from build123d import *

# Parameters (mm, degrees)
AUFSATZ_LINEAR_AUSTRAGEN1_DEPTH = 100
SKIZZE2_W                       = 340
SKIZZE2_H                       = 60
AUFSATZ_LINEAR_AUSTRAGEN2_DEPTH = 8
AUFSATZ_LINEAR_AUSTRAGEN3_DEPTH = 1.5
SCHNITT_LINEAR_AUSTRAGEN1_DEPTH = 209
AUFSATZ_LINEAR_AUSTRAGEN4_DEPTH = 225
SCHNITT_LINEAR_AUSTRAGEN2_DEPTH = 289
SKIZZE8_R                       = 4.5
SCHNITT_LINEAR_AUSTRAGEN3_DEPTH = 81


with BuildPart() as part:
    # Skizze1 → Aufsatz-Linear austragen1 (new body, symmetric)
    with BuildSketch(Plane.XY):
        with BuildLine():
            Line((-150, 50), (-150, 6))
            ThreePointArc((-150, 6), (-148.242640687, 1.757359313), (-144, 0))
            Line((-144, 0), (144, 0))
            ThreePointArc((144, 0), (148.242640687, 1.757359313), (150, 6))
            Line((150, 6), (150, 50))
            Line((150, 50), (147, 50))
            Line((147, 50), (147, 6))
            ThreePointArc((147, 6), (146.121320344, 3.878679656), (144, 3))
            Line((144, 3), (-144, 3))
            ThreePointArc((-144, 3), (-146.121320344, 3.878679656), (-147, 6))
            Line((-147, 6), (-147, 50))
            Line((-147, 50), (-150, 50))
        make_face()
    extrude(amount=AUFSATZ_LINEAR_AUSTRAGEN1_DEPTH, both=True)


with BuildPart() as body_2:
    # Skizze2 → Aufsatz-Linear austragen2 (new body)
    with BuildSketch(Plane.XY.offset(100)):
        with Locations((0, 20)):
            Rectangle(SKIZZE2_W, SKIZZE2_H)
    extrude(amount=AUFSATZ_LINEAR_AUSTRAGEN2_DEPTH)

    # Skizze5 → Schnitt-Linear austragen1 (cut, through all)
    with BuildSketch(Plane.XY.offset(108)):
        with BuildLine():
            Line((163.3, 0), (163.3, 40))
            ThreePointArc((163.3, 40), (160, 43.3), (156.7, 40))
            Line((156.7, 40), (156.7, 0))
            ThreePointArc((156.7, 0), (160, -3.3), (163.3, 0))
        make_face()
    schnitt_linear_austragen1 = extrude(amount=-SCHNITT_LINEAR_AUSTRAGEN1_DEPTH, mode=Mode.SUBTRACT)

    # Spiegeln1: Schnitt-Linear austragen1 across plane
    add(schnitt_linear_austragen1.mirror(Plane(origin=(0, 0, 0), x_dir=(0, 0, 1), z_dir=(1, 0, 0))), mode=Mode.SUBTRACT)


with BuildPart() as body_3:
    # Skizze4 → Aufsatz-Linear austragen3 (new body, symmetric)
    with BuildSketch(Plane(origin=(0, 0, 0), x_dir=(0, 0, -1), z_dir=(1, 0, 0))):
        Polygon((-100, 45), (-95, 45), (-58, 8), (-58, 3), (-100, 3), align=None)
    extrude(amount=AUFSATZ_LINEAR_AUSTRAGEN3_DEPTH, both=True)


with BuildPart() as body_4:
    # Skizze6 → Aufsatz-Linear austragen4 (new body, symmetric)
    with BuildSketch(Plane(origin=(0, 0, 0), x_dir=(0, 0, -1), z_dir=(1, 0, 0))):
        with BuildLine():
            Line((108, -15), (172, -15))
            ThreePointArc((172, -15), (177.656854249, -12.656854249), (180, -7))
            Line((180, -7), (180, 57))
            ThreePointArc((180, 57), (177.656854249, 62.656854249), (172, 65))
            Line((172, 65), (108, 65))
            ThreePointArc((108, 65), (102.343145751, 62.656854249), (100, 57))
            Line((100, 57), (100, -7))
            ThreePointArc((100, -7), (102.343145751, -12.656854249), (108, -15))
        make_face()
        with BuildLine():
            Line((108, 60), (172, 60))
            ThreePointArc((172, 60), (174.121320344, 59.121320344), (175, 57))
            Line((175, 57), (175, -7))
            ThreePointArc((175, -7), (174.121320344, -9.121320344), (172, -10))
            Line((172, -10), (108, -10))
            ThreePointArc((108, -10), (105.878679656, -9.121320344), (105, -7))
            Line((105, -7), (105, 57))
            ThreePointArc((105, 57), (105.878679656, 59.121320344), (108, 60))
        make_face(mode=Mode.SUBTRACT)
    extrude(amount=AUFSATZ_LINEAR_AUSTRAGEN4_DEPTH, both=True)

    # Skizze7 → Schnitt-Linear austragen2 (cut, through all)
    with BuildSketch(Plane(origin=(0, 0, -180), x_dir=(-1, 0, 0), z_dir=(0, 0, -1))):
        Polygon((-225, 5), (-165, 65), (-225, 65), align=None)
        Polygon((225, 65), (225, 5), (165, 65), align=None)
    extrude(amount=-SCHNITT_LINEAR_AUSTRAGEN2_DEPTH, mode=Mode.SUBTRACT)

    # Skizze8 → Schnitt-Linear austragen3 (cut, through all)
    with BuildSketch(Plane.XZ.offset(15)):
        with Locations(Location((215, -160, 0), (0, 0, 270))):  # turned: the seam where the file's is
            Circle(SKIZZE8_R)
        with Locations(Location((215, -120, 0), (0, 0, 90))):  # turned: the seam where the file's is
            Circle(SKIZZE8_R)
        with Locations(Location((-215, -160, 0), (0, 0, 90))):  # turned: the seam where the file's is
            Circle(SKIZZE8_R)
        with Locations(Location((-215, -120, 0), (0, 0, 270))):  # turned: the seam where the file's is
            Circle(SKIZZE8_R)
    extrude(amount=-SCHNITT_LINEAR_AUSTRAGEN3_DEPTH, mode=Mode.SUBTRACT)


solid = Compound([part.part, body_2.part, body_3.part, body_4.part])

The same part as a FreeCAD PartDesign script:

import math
import FreeCAD as App
import Part
import Sketcher

V = App.Vector


def add_polygon(sketch, points):
    """Adds a closed chain of lines whose ends are joined by coincident constraints."""
    first, n = sketch.GeometryCount, len(points)
    for a, b in zip(points, points[1:] + points[:1]):
        sketch.addGeometry(Part.LineSegment(App.Vector(*a, 0), App.Vector(*b, 0)), False)
    for i in range(n):
        sketch.addConstraint(Sketcher.Constraint("Coincident", first + i, 2, first + (i + 1) % n, 1))

doc = App.newDocument("Part")
body = doc.addObject("PartDesign::Body", "Body")

sketch1 = body.newObject("Sketcher::SketchObject", "Sketch")
sketch1.AttachmentSupport = (doc.getObject("XY_Plane"), [""])
sketch1.MapMode = "FlatFace"
sketch1.addGeometry([
    Part.LineSegment(V(-150, 50, 0), V(-150, 6, 0)),
    Part.ArcOfCircle(Part.Circle(V(-144, 6, 0), V(0, 0, 1), 6), math.radians(180), math.radians(270)),
    Part.LineSegment(V(-144, 0, 0), V(144, 0, 0)),
    Part.ArcOfCircle(Part.Circle(V(144, 6, 0), V(0, 0, 1), 6), math.radians(-90), math.radians(0)),
    Part.LineSegment(V(150, 6, 0), V(150, 50, 0)),
    Part.LineSegment(V(150, 50, 0), V(147, 50, 0)),
    Part.LineSegment(V(147, 50, 0), V(147, 6, 0)),
    Part.ArcOfCircle(Part.Circle(V(144, 6, 0), V(0, 0, 1), 3), math.radians(-90), math.radians(0)),
    Part.LineSegment(V(144, 3, 0), V(-144, 3, 0)),
    Part.ArcOfCircle(Part.Circle(V(-144, 6, 0), V(0, 0, 1), 3), math.radians(180), math.radians(270)),
    Part.LineSegment(V(-147, 6, 0), V(-147, 50, 0)),
    Part.LineSegment(V(-147, 50, 0), V(-150, 50, 0)),
], False)
sketch1.addConstraint([
    Sketcher.Constraint("Tangent", 0, 2, 1, 1),
    Sketcher.Constraint("Tangent", 1, 2, 2, 1),
    Sketcher.Constraint("Tangent", 2, 2, 3, 1),
    Sketcher.Constraint("Tangent", 3, 2, 4, 1),
    Sketcher.Constraint("Coincident", 4, 2, 5, 1),
    Sketcher.Constraint("Coincident", 5, 2, 6, 1),
    Sketcher.Constraint("Tangent", 6, 2, 7, 2),
    Sketcher.Constraint("Tangent", 7, 1, 8, 1),
    Sketcher.Constraint("Tangent", 8, 2, 9, 2),
    Sketcher.Constraint("Tangent", 9, 1, 10, 1),
    Sketcher.Constraint("Coincident", 10, 2, 11, 1),
    Sketcher.Constraint("Coincident", 11, 2, 0, 1),
    Sketcher.Constraint("Vertical", 0),
    Sketcher.Constraint("Horizontal", 2),
    Sketcher.Constraint("Vertical", 4),
    Sketcher.Constraint("Horizontal", 5),
    Sketcher.Constraint("Vertical", 6),
    Sketcher.Constraint("Horizontal", 8),
    Sketcher.Constraint("Vertical", 10),
    Sketcher.Constraint("Horizontal", 11),
    Sketcher.Constraint("Coincident", 7, 3, 3, 3),
    Sketcher.Constraint("Coincident", 9, 3, 1, 3),
    Sketcher.Constraint("Equal", 1, 3),
    Sketcher.Constraint("Symmetric", 1, 2, 2, 2, -1, 1),
    Sketcher.Constraint("Horizontal", 5, 2, 10, 2),
    Sketcher.Constraint("Radius", 1, 6.0),
    Sketcher.Constraint("Radius", 7, 3.0),
    Sketcher.Constraint("DistanceX", 2, 1, 2, 2, 288.0),
    Sketcher.Constraint("DistanceY", 0, 2, 0, 1, 44.0),
])
pad1 = body.newObject("PartDesign::Pad", "Pad")
pad1.Profile = sketch1
pad1.Length = 200
pad1.Midplane = True
body2 = doc.addObject("PartDesign::Body", "Body001")

sketch2 = body2.newObject("Sketcher::SketchObject", "Sketch001")
sketch2.AttachmentSupport = (doc.getObject("XY_Plane001"), [""])
sketch2.MapMode = "FlatFace"
sketch2.AttachmentOffset = App.Placement(V(0, 0, 100), App.Rotation())
add_polygon(sketch2, [(-170, 50), (-170, -10), (170, -10), (170, 50)])
sketch2.addConstraint([
    Sketcher.Constraint("Vertical", 0),
    Sketcher.Constraint("Horizontal", 1),
    Sketcher.Constraint("Vertical", 2),
    Sketcher.Constraint("Horizontal", 3),
    Sketcher.Constraint("DistanceX", 1, 1, 1, 2, 340.0),
    Sketcher.Constraint("DistanceY", 0, 2, 0, 1, 60.0),
    Sketcher.Constraint("DistanceX", 0, 2, -1, 1, 170.0),
    Sketcher.Constraint("DistanceY", 0, 2, -1, 1, 10.0),
])
pad2 = body2.newObject("PartDesign::Pad", "Pad001")
pad2.Profile = sketch2
pad2.Length = 8

sketch3 = body2.newObject("Sketcher::SketchObject", "Sketch002")
sketch3.AttachmentSupport = (doc.getObject("XY_Plane001"), [""])
sketch3.MapMode = "FlatFace"
sketch3.AttachmentOffset = App.Placement(V(0, 0, 108), App.Rotation())
sketch3.addGeometry([
    Part.LineSegment(V(163.3, 0, 0), V(163.3, 40, 0)),
    Part.ArcOfCircle(Part.Circle(V(160, 40, 0), V(0, 0, 1), 3.3), math.radians(0), math.radians(180)),
    Part.LineSegment(V(156.7, 40, 0), V(156.7, 0, 0)),
    Part.ArcOfCircle(Part.Circle(V(160, 0, 0), V(0, 0, 1), 3.3), math.radians(180), math.radians(360)),
], False)
sketch3.addConstraint([
    Sketcher.Constraint("Tangent", 0, 2, 1, 1),
    Sketcher.Constraint("Tangent", 1, 2, 2, 1),
    Sketcher.Constraint("Tangent", 2, 2, 3, 1),
    Sketcher.Constraint("Tangent", 3, 2, 0, 1),
    Sketcher.Constraint("Vertical", 0),
    Sketcher.Constraint("Vertical", 2),
    Sketcher.Constraint("PointOnObject", 3, 3, -1),
    Sketcher.Constraint("Radius", 1, 3.3),
    Sketcher.Constraint("DistanceY", 0, 1, 0, 2, 40.0),
    Sketcher.Constraint("DistanceX", -1, 1, 1, 3, 160.0),
])
pocket1 = body2.newObject("PartDesign::Pocket", "Pocket")
pocket1.Profile = sketch3
pocket1.Type = "ThroughAll"
doc.recompute()

mirrored = body2.newObject("PartDesign::Mirrored", "Mirrored")
mirrored.Originals = [pocket1]
mirrored.MirrorPlane = (doc.getObject("YZ_Plane001"), [""])
body2.Tip = mirrored
body3 = doc.addObject("PartDesign::Body", "Body002")

sketch4 = body3.newObject("Sketcher::SketchObject", "Sketch003")
sketch4.AttachmentSupport = (doc.getObject("YZ_Plane002"), [""])
sketch4.MapMode = "FlatFace"
add_polygon(sketch4, [(45, 95), (45, 100), (3, 100), (3, 58), (8, 58)])
sketch4.addConstraint([
    Sketcher.Constraint("Vertical", 0),
    Sketcher.Constraint("Horizontal", 1),
    Sketcher.Constraint("Vertical", 2),
    Sketcher.Constraint("Horizontal", 3),
    Sketcher.Constraint("Equal", 3, 0),
    Sketcher.Constraint("Equal", 1, 2),
    Sketcher.Constraint("DistanceX", 1, 2, 1, 1, 42.0),
    Sketcher.Constraint("DistanceX", 3, 1, 3, 2, 5.0),
    Sketcher.Constraint("DistanceX", -1, 1, 0, 2, 45.0),
    Sketcher.Constraint("DistanceY", -1, 1, 0, 2, 100.0),
])
pad3 = body3.newObject("PartDesign::Pad", "Pad002")
pad3.Profile = sketch4
pad3.Length = 3
pad3.Midplane = True
body4 = doc.addObject("PartDesign::Body", "Body003")

sketch5 = body4.newObject("Sketcher::SketchObject", "Sketch004")
sketch5.AttachmentSupport = (doc.getObject("YZ_Plane003"), [""])
sketch5.MapMode = "FlatFace"
sketch5.addGeometry([
    Part.LineSegment(V(-15, -108, 0), V(-15, -172, 0)),
    Part.ArcOfCircle(Part.Circle(V(-7, -172, 0), V(0, 0, 1), 8), math.radians(-180), math.radians(-90)),
    Part.LineSegment(V(-7, -180, 0), V(57, -180, 0)),
    Part.ArcOfCircle(Part.Circle(V(57, -172, 0), V(0, 0, 1), 8), math.radians(-90), math.radians(0)),
    Part.LineSegment(V(65, -172, 0), V(65, -108, 0)),
    Part.ArcOfCircle(Part.Circle(V(57, -108, 0), V(0, 0, 1), 8), math.radians(0), math.radians(90)),
    Part.LineSegment(V(57, -100, 0), V(-7, -100, 0)),
    Part.ArcOfCircle(Part.Circle(V(-7, -108, 0), V(0, 0, 1), 8), math.radians(90), math.radians(180)),
    Part.ArcOfCircle(Part.Circle(V(57, -108, 0), V(0, 0, 1), 3), math.radians(0), math.radians(90)),
    Part.LineSegment(V(60, -108, 0), V(60, -172, 0)),
    Part.ArcOfCircle(Part.Circle(V(57, -172, 0), V(0, 0, 1), 3), math.radians(-90), math.radians(0)),
    Part.LineSegment(V(57, -175, 0), V(-7, -175, 0)),
    Part.ArcOfCircle(Part.Circle(V(-7, -172, 0), V(0, 0, 1), 3), math.radians(180), math.radians(270)),
    Part.LineSegment(V(-10, -172, 0), V(-10, -108, 0)),
    Part.ArcOfCircle(Part.Circle(V(-7, -108, 0), V(0, 0, 1), 3), math.radians(90), math.radians(180)),
    Part.LineSegment(V(-7, -105, 0), V(57, -105, 0)),
], False)
sketch5.addConstraint([
    Sketcher.Constraint("Tangent", 0, 2, 1, 1),
    Sketcher.Constraint("Tangent", 1, 2, 2, 1),
    Sketcher.Constraint("Tangent", 2, 2, 3, 1),
    Sketcher.Constraint("Tangent", 3, 2, 4, 1),
    Sketcher.Constraint("Tangent", 4, 2, 5, 1),
    Sketcher.Constraint("Tangent", 5, 2, 6, 1),
    Sketcher.Constraint("Tangent", 6, 2, 7, 1),
    Sketcher.Constraint("Tangent", 7, 2, 0, 1),
    Sketcher.Constraint("Tangent", 8, 1, 9, 1),
    Sketcher.Constraint("Tangent", 9, 2, 10, 2),
    Sketcher.Constraint("Tangent", 10, 1, 11, 1),
    Sketcher.Constraint("Tangent", 11, 2, 12, 2),
    Sketcher.Constraint("Tangent", 12, 1, 13, 1),
    Sketcher.Constraint("Tangent", 13, 2, 14, 2),
    Sketcher.Constraint("Tangent", 14, 1, 15, 1),
    Sketcher.Constraint("Tangent", 15, 2, 8, 2),
    Sketcher.Constraint("Vertical", 0),
    Sketcher.Constraint("Horizontal", 2),
    Sketcher.Constraint("Vertical", 4),
    Sketcher.Constraint("Horizontal", 6),
    Sketcher.Constraint("Vertical", 9),
    Sketcher.Constraint("Horizontal", 11),
    Sketcher.Constraint("Vertical", 13),
    Sketcher.Constraint("Horizontal", 15),
    Sketcher.Constraint("Coincident", 8, 3, 5, 3),
    Sketcher.Constraint("Coincident", 10, 3, 3, 3),
    Sketcher.Constraint("Coincident", 12, 3, 1, 3),
    Sketcher.Constraint("Equal", 1, 3),
    Sketcher.Constraint("Equal", 3, 5),
    Sketcher.Constraint("Equal", 5, 7),
    Sketcher.Constraint("Equal", 12, 14),
    Sketcher.Constraint("Equal", 15, 0),
    Sketcher.Constraint("Radius", 1, 8.0),
    Sketcher.Constraint("Radius", 8, 3.0),
    Sketcher.Constraint("DistanceX", 2, 1, 2, 2, 64.0),
    Sketcher.Constraint("DistanceX", 1, 3, -1, 1, 7.0),
    Sketcher.Constraint("DistanceY", 1, 3, -1, 1, 172.0),
])
pad4 = body4.newObject("PartDesign::Pad", "Pad003")
pad4.Profile = sketch5
pad4.Length = 450
pad4.Midplane = True

sketch6 = body4.newObject("Sketcher::SketchObject", "Sketch005")
sketch6.AttachmentSupport = (doc.getObject("XY_Plane003"), [""])
sketch6.MapMode = "FlatFace"
sketch6.AttachmentOffset = App.Placement(V(0, 0, -180), App.Rotation())
add_polygon(sketch6, [(225, 5), (165, 65), (225, 65)])
add_polygon(sketch6, [(-225, 5), (-225, 65), (-165, 65)])
sketch6.addConstraint([
    Sketcher.Constraint("Horizontal", 1),
    Sketcher.Constraint("Vertical", 2),
    Sketcher.Constraint("Vertical", 3),
    Sketcher.Constraint("Horizontal", 4),
    Sketcher.Constraint("Symmetric", 1, 2, 3, 2, -2),
    Sketcher.Constraint("Perpendicular", 0, 5),
    Sketcher.Constraint("Horizontal", 2, 2, 5, 2),
    Sketcher.Constraint("Equal", 1, 4),
    Sketcher.Constraint("DistanceX", 1, 1, 1, 2, 60.0),
    Sketcher.Constraint("DistanceX", -1, 1, 0, 2, 165.0),
    Sketcher.Constraint("DistanceY", -1, 1, 0, 2, 65.0),
])
pocket2 = body4.newObject("PartDesign::Pocket", "Pocket001")
pocket2.Profile = sketch6
pocket2.Type = "ThroughAll"
pocket2.Reversed = True

sketch7 = body4.newObject("Sketcher::SketchObject", "Sketch006")
sketch7.AttachmentSupport = (doc.getObject("XZ_Plane003"), [""])
sketch7.MapMode = "FlatFace"
sketch7.AttachmentOffset = App.Placement(V(0, 0, 15), App.Rotation())
sketch7.addGeometry([
    Part.Circle(V(215, -160, 0), V(0, 0, 1), 4.5),
    Part.Circle(V(215, -120, 0), V(0, 0, 1), 4.5),
    Part.Circle(V(-215, -160, 0), V(0, 0, 1), 4.5),
    Part.Circle(V(-215, -120, 0), V(0, 0, 1), 4.5),
], False)
sketch7.addConstraint([
    Sketcher.Constraint("Equal", 0, 1),
    Sketcher.Constraint("Equal", 1, 2),
    Sketcher.Constraint("Equal", 2, 3),
    Sketcher.Constraint("Symmetric", 0, 3, 2, 3, -2),
    Sketcher.Constraint("Symmetric", 1, 3, 3, 3, -2),
    Sketcher.Constraint("Vertical", 0, 3, 1, 3),
    Sketcher.Constraint("Diameter", 0, 9.0),
    Sketcher.Constraint("DistanceX", -1, 1, 0, 3, 215.0),
    Sketcher.Constraint("DistanceY", 0, 3, -1, 1, 160.0),
    Sketcher.Constraint("DistanceY", 1, 3, -1, 1, 120.0),
])
pocket3 = body4.newObject("PartDesign::Pocket", "Pocket002")
pocket3.Profile = sketch7
pocket3.Type = "ThroughAll"

doc.recompute()
